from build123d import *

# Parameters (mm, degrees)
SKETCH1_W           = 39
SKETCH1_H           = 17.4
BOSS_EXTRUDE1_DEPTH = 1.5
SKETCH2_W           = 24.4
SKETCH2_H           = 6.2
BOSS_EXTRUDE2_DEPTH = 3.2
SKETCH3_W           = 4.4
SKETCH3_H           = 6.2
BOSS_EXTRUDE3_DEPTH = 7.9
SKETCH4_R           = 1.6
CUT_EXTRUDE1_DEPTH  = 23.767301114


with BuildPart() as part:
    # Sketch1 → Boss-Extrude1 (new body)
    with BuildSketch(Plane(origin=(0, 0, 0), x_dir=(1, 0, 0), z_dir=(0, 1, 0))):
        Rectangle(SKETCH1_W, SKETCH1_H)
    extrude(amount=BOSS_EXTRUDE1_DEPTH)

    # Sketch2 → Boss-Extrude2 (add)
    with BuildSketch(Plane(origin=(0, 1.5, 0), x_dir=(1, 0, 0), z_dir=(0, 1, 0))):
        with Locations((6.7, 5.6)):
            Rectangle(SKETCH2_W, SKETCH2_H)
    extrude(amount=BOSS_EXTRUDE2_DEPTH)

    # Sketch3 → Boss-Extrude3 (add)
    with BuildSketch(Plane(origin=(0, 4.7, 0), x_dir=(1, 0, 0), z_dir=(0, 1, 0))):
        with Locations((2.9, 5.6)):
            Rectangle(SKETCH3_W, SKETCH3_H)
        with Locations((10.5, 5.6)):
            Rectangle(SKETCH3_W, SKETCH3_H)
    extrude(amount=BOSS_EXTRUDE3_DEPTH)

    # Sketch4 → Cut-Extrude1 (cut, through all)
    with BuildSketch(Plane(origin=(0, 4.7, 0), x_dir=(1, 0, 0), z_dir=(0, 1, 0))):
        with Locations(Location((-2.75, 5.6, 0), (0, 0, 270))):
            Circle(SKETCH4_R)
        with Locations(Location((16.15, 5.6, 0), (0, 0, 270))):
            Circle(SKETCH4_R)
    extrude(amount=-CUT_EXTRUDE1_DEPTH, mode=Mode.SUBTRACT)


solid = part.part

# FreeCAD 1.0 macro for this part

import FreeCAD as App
import Part
import Sketcher
Q = App.Units.Quantity


def add_polygon(sketch, points):
    """Adds a closed chain of lines whose ends are joined by coincident constraints."""
    first, n = sketch.GeometryCount, len(points)
    for a, b in zip(points, points[1:] + points[:1]):
        sketch.addGeometry(Part.LineSegment(App.Vector(*a, 0), App.Vector(*b, 0)), False)
    for i in range(n):
        sketch.addConstraint(Sketcher.Constraint("Coincident", first + i, 2, first + (i + 1) % n, 1))

doc = App.newDocument("Part")
body = doc.addObject("PartDesign::Body", "Body")

# Sketch on XZ plane
sketch1 = body.newObject("Sketcher::SketchObject", "Sketch")
sketch1.AttachmentSupport = (doc.getObject("XZ_Plane"), [""])
sketch1.MapMode = "FlatFace"
add_polygon(sketch1, [(-20, -9), (-20, 9), (20, 9), (20, -9)])  # lines 0-3
sketch1.addConstraint([
    Sketcher.Constraint("Vertical", 0),
    Sketcher.Constraint("Horizontal", 1),
    Sketcher.Constraint("Vertical", 2),
    Sketcher.Constraint("Horizontal", 3),
    Sketcher.Constraint("Symmetric", 0, 2, 2, 2, -1, 1),
    Sketcher.Constraint("DistanceX", 1, 1, 1, 2, Q("39 mm")),
    Sketcher.Constraint("DistanceY", 0, 1, 0, 2, Q("17.4 mm")),
])
pad1 = body.newObject("PartDesign::Pad", "Pad")
pad1.Profile = sketch1
pad1.Length = 1.5
pad1.Reversed = True

# Sketch on XZ plane
sketch2 = body.newObject("Sketcher::SketchObject", "Sketch001")
sketch2.AttachmentSupport = (doc.getObject("XZ_Plane"), [""])
sketch2.MapMode = "FlatFace"
sketch2.AttachmentOffset = App.Placement(App.Vector(0, 0, -1.5), App.Rotation())
add_polygon(sketch2, [(-6, -9), (-6, -2), (19, -2), (19, -9)])  # lines 0-3
sketch2.addConstraint([
    Sketcher.Constraint("Vertical", 0),
    Sketcher.Constraint("Horizontal", 1),
    Sketcher.Constraint("Vertical", 2),
    Sketcher.Constraint("Horizontal", 3),
    Sketcher.Constraint("DistanceX", 1, 1, 1, 2, Q("24.4 mm")),
    Sketcher.Constraint("DistanceY", 0, 1, 0, 2, Q("6.2 mm")),
    Sketcher.Constraint("DistanceX", 0, 2, -1, 1, Q("5.5 mm")),
    Sketcher.Constraint("DistanceY", 0, 2, -1, 1, Q("2.5 mm")),
])
pad2 = body.newObject("PartDesign::Pad", "Pad001")
pad2.Profile = sketch2
pad2.Length = 3.2
pad2.Reversed = True

# Sketch on XZ plane
sketch3 = body.newObject("Sketcher::SketchObject", "Sketch002")
sketch3.AttachmentSupport = (doc.getObject("XZ_Plane"), [""])
sketch3.MapMode = "FlatFace"
sketch3.AttachmentOffset = App.Placement(App.Vector(0, 0, -4.7), App.Rotation())
add_polygon(sketch3, [(0.7, -8.7), (0.7, -2.5), (5.1, -2.5), (5.1, -8.7)])  # lines 0-3
add_polygon(sketch3, [(8.3, -8.7), (8.3, -2.5), (12.7, -2.5), (12.7, -8.7)])  # lines 4-7
sketch3.addConstraint([
    Sketcher.Constraint("Vertical", 0),
    Sketcher.Constraint("Horizontal", 1),
    Sketcher.Constraint("Vertical", 2),
    Sketcher.Constraint("Horizontal", 3),
    Sketcher.Constraint("Vertical", 4),
    Sketcher.Constraint("Horizontal", 5),
    Sketcher.Constraint("Vertical", 6),
    Sketcher.Constraint("Horizontal", 7),
    Sketcher.Constraint("Horizontal", 1, 2, 4, 2),
    Sketcher.Constraint("Horizontal", 3, 2, 6, 2),
    Sketcher.Constraint("Equal", 3, 5),
    Sketcher.Constraint("DistanceX", 1, 1, 1, 2, Q("4.4 mm")),
    Sketcher.Constraint("DistanceY", 0, 1, 0, 2, Q("6.2 mm")),
    Sketcher.Constraint("DistanceX", 0, 2, 5, 2, Q("12 mm")),
    Sketcher.Constraint("DistanceX", -1, 1, 0, 2, Q("0.7 mm")),
    Sketcher.Constraint("DistanceY", 0, 2, -1, 1, Q("2.5 mm")),
])
pad3 = body.newObject("PartDesign::Pad", "Pad002")
pad3.Profile = sketch3
pad3.Length = 7.9
pad3.Reversed = True

# Sketch on XZ plane
sketch4 = body.newObject("Sketcher::SketchObject", "Sketch003")
sketch4.AttachmentSupport = (doc.getObject("XZ_Plane"), [""])
sketch4.MapMode = "FlatFace"
sketch4.AttachmentOffset = App.Placement(App.Vector(0, 0, -4.7), App.Rotation())
sketch4.addGeometry([
    Part.Circle(App.Vector(-2.8, -5.6, 0), App.Vector(0, 0, 1), 1.6),
    Part.Circle(App.Vector(16.1, -5.6, 0), App.Vector(0, 0, 1), 1.6),
], False)
sketch4.addConstraint([
    Sketcher.Constraint("Equal", 0, 1),
    Sketcher.Constraint("Horizontal", 0, 3, 1, 3),
    Sketcher.Constraint("Diameter", 0, Q("3.2 mm")),
    Sketcher.Constraint("DistanceY", 0, 3, -1, 1, Q("5.6 mm")),
    Sketcher.Constraint("DistanceX", 0, 3, 1, 3, Q("18.9 mm")),
    Sketcher.Constraint("DistanceX", 0, 3, -1, 1, Q("2.75 mm")),
])
pocket1 = body.newObject("PartDesign::Pocket", "Pocket")
pocket1.Profile = sketch4
pocket1.Type = "ThroughAll"
pocket1.Reversed = True

doc.recompute()
